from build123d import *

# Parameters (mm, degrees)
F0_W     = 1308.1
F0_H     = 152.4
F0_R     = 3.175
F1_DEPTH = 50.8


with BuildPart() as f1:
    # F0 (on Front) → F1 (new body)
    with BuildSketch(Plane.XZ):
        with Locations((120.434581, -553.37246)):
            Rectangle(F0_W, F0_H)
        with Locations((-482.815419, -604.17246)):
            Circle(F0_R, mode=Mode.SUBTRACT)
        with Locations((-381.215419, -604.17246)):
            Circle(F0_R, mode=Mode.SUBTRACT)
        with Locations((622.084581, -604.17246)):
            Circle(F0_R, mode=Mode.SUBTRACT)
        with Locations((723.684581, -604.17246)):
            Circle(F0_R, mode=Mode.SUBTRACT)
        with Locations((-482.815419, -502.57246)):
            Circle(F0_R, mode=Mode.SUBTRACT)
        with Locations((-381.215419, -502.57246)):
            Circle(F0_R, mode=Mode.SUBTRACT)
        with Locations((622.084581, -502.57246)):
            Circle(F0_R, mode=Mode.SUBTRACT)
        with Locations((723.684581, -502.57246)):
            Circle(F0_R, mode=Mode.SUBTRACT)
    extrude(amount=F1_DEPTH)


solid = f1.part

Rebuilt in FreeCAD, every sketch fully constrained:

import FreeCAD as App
import Part
import Sketcher
from FreeCAD import Vector
Q = App.Units.Quantity

doc = App.newDocument("Part")
body = doc.addObject("PartDesign::Body", "Body")

# Sketch on XZ plane
sketch1 = body.newObject("Sketcher::SketchObject", "Sketch")
sketch1.AttachmentSupport = (doc.getObject("XZ_Plane"), [""])
sketch1.MapMode = "FlatFace"
sketch1.addGeometry(Part.LineSegment(Vector(-533.6, -477.2, 0), Vector(-533.6, -629.6, 0)), False)
sketch1.addGeometry(Part.LineSegment(Vector(-533.6, -629.6, 0), Vector(774.5, -629.6, 0)), False)
sketch1.addGeometry(Part.LineSegment(Vector(774.5, -629.6, 0), Vector(774.5, -477.2, 0)), False)
sketch1.addGeometry(Part.LineSegment(Vector(774.5, -477.2, 0), Vector(-533.6, -477.2, 0)), False)
sketch1.addGeometry(Part.Circle(Vector(-482.8, -604.2, 0), Vector(0, 0, 1), 3.2), False)
sketch1.addGeometry(Part.Circle(Vector(-381.2, -604.2, 0), Vector(0, 0, 1), 3.2), False)
sketch1.addGeometry(Part.Circle(Vector(622.1, -604.2, 0), Vector(0, 0, 1), 3.2), False)
sketch1.addGeometry(Part.Circle(Vector(723.7, -604.2, 0), Vector(0, 0, 1), 3.2), False)
sketch1.addGeometry(Part.Circle(Vector(-482.8, -502.6, 0), Vector(0, 0, 1), 3.2), False)
sketch1.addGeometry(Part.Circle(Vector(-381.2, -502.6, 0), Vector(0, 0, 1), 3.2), False)
sketch1.addGeometry(Part.Circle(Vector(622.1, -502.6, 0), Vector(0, 0, 1), 3.2), False)
sketch1.addGeometry(Part.Circle(Vector(723.7, -502.6, 0), Vector(0, 0, 1), 3.2), False)
sketch1.addConstraint(Sketcher.Constraint("Coincident", 0, 2, 1, 1))
sketch1.addConstraint(Sketcher.Constraint("Coincident", 1, 2, 2, 1))
sketch1.addConstraint(Sketcher.Constraint("Coincident", 2, 2, 3, 1))
sketch1.addConstraint(Sketcher.Constraint("Coincident", 3, 2, 0, 1))
sketch1.addConstraint(Sketcher.Constraint("Vertical", 0))
sketch1.addConstraint(Sketcher.Constraint("Horizontal", 1))
sketch1.addConstraint(Sketcher.Constraint("Vertical", 2))
sketch1.addConstraint(Sketcher.Constraint("Horizontal", 3))
sketch1.addConstraint(Sketcher.Constraint("Equal", 4, 5))
sketch1.addConstraint(Sketcher.Constraint("Equal", 5, 6))
sketch1.addConstraint(Sketcher.Constraint("Equal", 6, 7))
sketch1.addConstraint(Sketcher.Constraint("Equal", 7, 8))
sketch1.addConstraint(Sketcher.Constraint("Equal", 8, 9))
sketch1.addConstraint(Sketcher.Constraint("Equal", 9, 10))
sketch1.addConstraint(Sketcher.Constraint("Equal", 10, 11))
sketch1.addConstraint(Sketcher.Constraint("Horizontal", 4, 3, 5, 3))
sketch1.addConstraint(Sketcher.Constraint("Horizontal", 5, 3, 6, 3))
sketch1.addConstraint(Sketcher.Constraint("Horizontal", 6, 3, 7, 3))
sketch1.addConstraint(Sketcher.Constraint("Horizontal", 8, 3, 9, 3))
sketch1.addConstraint(Sketcher.Constraint("Horizontal", 9, 3, 10, 3))
sketch1.addConstraint(Sketcher.Constraint("Horizontal", 10, 3, 11, 3))
sketch1.addConstraint(Sketcher.Constraint("Vertical", 4, 3, 8, 3))
sketch1.addConstraint(Sketcher.Constraint("Vertical", 5, 3, 9, 3))
sketch1.addConstraint(Sketcher.Constraint("Vertical", 6, 3, 10, 3))
sketch1.addConstraint(Sketcher.Constraint("Vertical", 7, 3, 11, 3))
sketch1.addConstraint(Sketcher.Constraint("Diameter", 4, Q("0.25 in")))
sketch1.addConstraint(Sketcher.Constraint("DistanceY", 0, 2, 0, 1, Q("6 in")))
sketch1.addConstraint(Sketcher.Constraint("DistanceX", 1, 1, 1, 2, Q("51.5 in")))
sketch1.addConstraint(Sketcher.Constraint("DistanceX", 4, 3, 5, 3, Q("4 in")))
sketch1.addConstraint(Sketcher.Constraint("DistanceX", 6, 3, 7, 3, Q("4 in")))
sketch1.addConstraint(Sketcher.Constraint("DistanceY", 4, 3, 8, 3, Q("4 in")))
sketch1.addConstraint(Sketcher.Constraint("DistanceX", 0, 2, 4, 3, Q("2 in")))
sketch1.addConstraint(Sketcher.Constraint("DistanceY", 0, 2, 4, 3, Q("1 in")))
sketch1.addConstraint(Sketcher.Constraint("DistanceX", 7, 3, 1, 2, Q("2 in")))
sketch1.addConstraint(Sketcher.Constraint("DistanceX", 4, 3, -1, 1, Q("482.815419 mm")))
sketch1.addConstraint(Sketcher.Constraint("DistanceY", 4, 3, -1, 1, Q("604.17246 mm")))
pad1 = body.newObject("PartDesign::Pad", "Pad")
pad1.Profile = sketch1
pad1.Length = Q("2 in")

doc.recompute()
